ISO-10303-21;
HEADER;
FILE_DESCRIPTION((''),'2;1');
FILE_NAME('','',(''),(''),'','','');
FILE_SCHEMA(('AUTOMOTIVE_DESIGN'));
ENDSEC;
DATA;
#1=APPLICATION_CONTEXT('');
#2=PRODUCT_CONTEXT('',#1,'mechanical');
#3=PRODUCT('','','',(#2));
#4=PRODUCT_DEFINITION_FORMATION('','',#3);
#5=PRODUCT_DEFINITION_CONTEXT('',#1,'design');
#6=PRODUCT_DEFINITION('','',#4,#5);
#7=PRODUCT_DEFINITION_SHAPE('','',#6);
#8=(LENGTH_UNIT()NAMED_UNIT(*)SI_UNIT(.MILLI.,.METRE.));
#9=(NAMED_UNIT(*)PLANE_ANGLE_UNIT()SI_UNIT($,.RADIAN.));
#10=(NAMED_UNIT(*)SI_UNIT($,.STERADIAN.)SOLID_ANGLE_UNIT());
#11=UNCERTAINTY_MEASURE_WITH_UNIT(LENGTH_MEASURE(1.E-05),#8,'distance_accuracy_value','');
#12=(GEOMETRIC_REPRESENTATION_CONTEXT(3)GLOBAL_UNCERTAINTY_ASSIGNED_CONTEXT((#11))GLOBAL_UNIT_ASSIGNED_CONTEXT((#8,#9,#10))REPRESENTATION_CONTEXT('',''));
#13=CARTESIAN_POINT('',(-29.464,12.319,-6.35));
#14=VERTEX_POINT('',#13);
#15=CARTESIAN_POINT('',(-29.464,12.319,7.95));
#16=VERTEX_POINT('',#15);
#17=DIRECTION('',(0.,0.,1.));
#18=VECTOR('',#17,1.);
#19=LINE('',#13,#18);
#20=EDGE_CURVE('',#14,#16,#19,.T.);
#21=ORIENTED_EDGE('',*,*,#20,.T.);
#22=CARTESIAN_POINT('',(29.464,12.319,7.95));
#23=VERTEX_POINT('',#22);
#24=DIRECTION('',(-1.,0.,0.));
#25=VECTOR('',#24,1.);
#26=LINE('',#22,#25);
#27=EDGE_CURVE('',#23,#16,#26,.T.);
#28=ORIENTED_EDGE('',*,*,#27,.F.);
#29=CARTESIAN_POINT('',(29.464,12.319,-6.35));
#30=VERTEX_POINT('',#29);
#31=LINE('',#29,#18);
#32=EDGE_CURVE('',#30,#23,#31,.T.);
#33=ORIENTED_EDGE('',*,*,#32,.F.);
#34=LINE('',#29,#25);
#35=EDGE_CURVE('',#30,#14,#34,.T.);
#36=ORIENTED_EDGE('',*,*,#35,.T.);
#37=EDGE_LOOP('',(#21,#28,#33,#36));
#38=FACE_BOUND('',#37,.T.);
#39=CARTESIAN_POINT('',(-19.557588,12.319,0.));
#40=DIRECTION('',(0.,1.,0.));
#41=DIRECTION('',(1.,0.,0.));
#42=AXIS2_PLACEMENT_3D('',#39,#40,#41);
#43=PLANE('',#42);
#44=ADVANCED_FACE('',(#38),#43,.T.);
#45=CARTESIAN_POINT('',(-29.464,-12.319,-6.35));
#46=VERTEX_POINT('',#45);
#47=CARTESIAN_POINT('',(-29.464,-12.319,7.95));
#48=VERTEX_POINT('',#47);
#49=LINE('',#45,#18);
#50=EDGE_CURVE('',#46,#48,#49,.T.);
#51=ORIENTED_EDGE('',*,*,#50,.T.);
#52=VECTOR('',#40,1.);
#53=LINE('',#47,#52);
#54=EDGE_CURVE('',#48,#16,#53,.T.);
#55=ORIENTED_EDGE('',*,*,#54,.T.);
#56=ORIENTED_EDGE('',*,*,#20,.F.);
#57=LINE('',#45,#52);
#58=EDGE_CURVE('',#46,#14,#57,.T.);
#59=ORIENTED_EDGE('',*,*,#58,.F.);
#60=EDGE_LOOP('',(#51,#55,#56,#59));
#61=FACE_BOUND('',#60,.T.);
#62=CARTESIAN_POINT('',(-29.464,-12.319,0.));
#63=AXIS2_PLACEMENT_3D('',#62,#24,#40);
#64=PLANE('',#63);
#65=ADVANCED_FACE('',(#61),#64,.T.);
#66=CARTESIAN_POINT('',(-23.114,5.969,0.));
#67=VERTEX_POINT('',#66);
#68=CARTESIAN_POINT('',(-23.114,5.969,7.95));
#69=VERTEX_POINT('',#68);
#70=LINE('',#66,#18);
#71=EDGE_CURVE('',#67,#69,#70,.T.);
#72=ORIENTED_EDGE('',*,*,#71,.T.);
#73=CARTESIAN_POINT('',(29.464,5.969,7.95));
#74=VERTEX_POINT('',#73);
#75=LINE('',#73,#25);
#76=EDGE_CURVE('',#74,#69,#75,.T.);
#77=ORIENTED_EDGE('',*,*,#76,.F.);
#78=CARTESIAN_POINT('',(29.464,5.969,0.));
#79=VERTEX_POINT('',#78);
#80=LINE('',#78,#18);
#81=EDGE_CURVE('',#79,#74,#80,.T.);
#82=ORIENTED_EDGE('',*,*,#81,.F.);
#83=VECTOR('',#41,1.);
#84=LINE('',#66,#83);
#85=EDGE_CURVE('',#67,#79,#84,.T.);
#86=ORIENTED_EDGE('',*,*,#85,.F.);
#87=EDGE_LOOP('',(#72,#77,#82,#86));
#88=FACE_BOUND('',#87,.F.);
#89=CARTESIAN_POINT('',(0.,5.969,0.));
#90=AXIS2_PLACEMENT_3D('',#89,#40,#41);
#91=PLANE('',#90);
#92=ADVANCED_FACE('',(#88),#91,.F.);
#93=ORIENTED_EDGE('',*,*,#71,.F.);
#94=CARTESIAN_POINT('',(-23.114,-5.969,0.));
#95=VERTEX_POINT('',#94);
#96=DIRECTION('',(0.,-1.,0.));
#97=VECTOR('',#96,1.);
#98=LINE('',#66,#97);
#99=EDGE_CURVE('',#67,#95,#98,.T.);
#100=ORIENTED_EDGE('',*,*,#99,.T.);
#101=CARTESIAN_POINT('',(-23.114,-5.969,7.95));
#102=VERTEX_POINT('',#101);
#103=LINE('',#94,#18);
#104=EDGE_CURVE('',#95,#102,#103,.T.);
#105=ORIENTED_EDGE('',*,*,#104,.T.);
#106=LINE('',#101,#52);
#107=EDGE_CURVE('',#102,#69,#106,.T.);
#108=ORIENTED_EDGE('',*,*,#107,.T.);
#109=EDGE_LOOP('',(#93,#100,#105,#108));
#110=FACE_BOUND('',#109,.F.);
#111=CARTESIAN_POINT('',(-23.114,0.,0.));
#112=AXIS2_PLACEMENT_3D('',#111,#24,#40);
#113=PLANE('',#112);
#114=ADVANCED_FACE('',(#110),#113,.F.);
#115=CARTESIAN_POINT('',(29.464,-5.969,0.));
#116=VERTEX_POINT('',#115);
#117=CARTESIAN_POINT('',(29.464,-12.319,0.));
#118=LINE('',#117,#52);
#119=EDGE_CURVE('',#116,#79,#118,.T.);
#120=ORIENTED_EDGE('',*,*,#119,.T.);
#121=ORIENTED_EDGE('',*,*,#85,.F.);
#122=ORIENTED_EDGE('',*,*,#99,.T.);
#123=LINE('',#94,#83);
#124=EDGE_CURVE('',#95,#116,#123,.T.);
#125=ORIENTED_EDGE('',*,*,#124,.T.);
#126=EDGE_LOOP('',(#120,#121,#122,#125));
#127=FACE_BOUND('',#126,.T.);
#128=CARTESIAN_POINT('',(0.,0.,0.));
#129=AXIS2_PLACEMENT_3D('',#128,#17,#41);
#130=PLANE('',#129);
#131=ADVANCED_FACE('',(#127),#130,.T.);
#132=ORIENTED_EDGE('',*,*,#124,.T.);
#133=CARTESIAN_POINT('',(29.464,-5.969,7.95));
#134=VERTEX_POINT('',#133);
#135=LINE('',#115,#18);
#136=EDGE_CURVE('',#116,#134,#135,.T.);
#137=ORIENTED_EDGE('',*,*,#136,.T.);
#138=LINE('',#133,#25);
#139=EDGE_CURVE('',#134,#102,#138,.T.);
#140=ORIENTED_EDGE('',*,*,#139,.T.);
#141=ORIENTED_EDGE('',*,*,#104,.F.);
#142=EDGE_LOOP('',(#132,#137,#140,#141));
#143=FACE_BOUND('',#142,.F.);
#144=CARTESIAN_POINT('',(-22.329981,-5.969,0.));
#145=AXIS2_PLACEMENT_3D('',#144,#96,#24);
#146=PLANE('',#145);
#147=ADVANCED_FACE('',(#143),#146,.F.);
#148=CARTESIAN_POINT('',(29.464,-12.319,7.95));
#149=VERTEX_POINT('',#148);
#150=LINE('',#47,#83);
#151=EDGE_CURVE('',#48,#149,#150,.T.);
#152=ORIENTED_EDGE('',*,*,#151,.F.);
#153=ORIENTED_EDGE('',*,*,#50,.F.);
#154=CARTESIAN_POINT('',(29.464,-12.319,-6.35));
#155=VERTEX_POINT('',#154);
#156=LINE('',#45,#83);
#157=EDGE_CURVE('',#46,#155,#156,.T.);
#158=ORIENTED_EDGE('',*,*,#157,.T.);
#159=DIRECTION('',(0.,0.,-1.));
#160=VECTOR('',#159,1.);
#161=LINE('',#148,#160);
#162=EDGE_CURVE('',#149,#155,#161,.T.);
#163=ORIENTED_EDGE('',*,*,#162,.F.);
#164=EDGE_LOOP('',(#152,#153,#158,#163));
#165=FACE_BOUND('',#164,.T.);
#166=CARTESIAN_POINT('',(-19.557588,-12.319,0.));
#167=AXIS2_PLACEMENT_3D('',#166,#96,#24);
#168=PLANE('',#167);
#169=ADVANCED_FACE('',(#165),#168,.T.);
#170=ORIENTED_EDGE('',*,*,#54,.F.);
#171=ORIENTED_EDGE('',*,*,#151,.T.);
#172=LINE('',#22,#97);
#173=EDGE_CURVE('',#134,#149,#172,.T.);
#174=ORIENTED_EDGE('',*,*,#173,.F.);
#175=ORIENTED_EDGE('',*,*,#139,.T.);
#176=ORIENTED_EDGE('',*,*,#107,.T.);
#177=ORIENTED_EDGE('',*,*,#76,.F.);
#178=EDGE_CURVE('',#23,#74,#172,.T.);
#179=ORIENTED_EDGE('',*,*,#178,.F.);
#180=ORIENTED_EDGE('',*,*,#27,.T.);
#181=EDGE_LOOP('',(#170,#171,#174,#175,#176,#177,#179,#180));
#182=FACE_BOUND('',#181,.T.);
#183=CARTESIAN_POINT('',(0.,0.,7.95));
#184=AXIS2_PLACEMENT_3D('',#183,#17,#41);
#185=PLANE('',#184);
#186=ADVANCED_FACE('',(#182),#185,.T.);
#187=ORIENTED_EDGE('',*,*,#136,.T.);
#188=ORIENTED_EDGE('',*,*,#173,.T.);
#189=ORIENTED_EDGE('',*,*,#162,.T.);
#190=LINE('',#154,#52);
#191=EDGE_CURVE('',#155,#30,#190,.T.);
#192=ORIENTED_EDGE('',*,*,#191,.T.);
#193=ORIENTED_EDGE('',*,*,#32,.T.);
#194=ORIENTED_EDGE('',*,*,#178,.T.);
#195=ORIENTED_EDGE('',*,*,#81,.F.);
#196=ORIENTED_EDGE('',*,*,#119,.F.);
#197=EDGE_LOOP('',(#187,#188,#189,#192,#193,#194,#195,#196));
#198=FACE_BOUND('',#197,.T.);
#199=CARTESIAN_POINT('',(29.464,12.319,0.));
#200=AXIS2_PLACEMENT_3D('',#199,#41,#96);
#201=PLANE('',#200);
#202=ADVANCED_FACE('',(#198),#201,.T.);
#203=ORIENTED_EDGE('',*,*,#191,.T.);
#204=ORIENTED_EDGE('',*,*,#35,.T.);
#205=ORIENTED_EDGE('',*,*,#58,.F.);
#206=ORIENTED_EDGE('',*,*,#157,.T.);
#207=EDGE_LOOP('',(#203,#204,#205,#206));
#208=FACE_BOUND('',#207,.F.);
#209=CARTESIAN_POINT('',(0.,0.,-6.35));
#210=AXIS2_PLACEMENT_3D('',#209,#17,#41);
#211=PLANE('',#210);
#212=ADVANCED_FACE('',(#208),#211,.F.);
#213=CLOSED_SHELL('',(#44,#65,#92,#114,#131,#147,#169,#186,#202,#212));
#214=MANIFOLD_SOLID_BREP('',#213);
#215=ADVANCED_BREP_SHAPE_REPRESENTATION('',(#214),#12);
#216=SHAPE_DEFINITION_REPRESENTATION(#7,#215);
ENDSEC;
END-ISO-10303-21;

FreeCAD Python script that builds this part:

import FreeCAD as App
import Part
import Sketcher
Q = App.Units.Quantity

doc = App.newDocument("Part")
params = doc.addObject("Spreadsheet::Sheet", "Params")
for row, (alias, value) in enumerate([
    ("sketch1_width", "2.32 in"),
    ("sketch1_height", "0.97 in"),
    ("sketch1_height2", "0.47 in"),
    ("pad1_length", "0.3129921 in"),
    ("sketch2_width", "2.32 in"),
    ("sketch2_height", "0.97 in"),
    ("pad2_length", "0.25 in"),
], start=1):
    params.set(f"A{row}", alias)
    params.set(f"B{row}", "=" + value)
    params.setAlias(f"B{row}", alias)

body = doc.addObject("PartDesign::Body", "Body")

sketch1 = body.newObject("Sketcher::SketchObject", "Sketch")
sketch1.AttachmentSupport = (doc.getObject("XY_Plane"), [""])
sketch1.MapMode = "FlatFace"
sketch1.addGeometry([
    Part.LineSegment(App.Vector(29, 6, 0), App.Vector(29, 12, 0)),
    Part.LineSegment(App.Vector(29, 12, 0), App.Vector(-29, 12, 0)),
    Part.LineSegment(App.Vector(-29, 12, 0), App.Vector(-29, -12, 0)),
    Part.LineSegment(App.Vector(-29, -12, 0), App.Vector(29, -12, 0)),
    Part.LineSegment(App.Vector(29, -12, 0), App.Vector(29, -6, 0)),
    Part.LineSegment(App.Vector(29, -6, 0), App.Vector(-23, -6, 0)),
    Part.LineSegment(App.Vector(-23, -6, 0), App.Vector(-23, 6, 0)),
    Part.LineSegment(App.Vector(-23, 6, 0), App.Vector(29, 6, 0)),
], False)
sketch1.addConstraint([
    Sketcher.Constraint("Coincident", 0, 2, 1, 1),
    Sketcher.Constraint("Coincident", 1, 2, 2, 1),
    Sketcher.Constraint("Coincident", 2, 2, 3, 1),
    Sketcher.Constraint("Coincident", 3, 2, 4, 1),
    Sketcher.Constraint("Coincident", 4, 2, 5, 1),
    Sketcher.Constraint("Coincident", 5, 2, 6, 1),
    Sketcher.Constraint("Coincident", 6, 2, 7, 1),
    Sketcher.Constraint("Coincident", 7, 2, 0, 1),
    Sketcher.Constraint("Vertical", 0),
    Sketcher.Constraint("Horizontal", 1),
    Sketcher.Constraint("Vertical", 2),
    Sketcher.Constraint("Horizontal", 3),
    Sketcher.Constraint("Vertical", 4),
    Sketcher.Constraint("Horizontal", 5),
    Sketcher.Constraint("Vertical", 6),
    Sketcher.Constraint("Horizontal", 7),
    Sketcher.Constraint("Symmetric", 0, 2, 2, 2, -1, 1),
    Sketcher.Constraint("Symmetric", 4, 2, 7, 2, -1),
    Sketcher.Constraint("DistanceX", 1, 2, 1, 1, Q("2.32 in")),
    Sketcher.Constraint("DistanceY", 2, 2, 2, 1, Q("0.97 in")),
    Sketcher.Constraint("DistanceY", 6, 1, 6, 2, Q("0.47 in")),
    Sketcher.Constraint("DistanceX", 5, 2, -1, 1, Q("0.91 in")),
])
sketch1.setExpression("Constraints[18]", "Params.sketch1_width")
sketch1.setExpression("Constraints[19]", "Params.sketch1_height")
sketch1.setExpression("Constraints[20]", "Params.sketch1_height2")
pad1 = body.newObject("PartDesign::Pad", "Pad")
pad1.Profile = sketch1
pad1.setExpression("Length", "Params.pad1_length")

sketch2 = body.newObject("Sketcher::SketchObject", "Sketch001")
sketch2.AttachmentSupport = (doc.getObject("XY_Plane"), [""])
sketch2.MapMode = "FlatFace"
sketch2.addGeometry([
    Part.LineSegment(App.Vector(29, -12, 0), App.Vector(29, 12, 0)),
    Part.LineSegment(App.Vector(29, 12, 0), App.Vector(-29, 12, 0)),
    Part.LineSegment(App.Vector(-29, 12, 0), App.Vector(-29, -12, 0)),
    Part.LineSegment(App.Vector(-29, -12, 0), App.Vector(29, -12, 0)),
], False)
sketch2.addConstraint([
    Sketcher.Constraint("Coincident", 0, 2, 1, 1),
    Sketcher.Constraint("Coincident", 1, 2, 2, 1),
    Sketcher.Constraint("Coincident", 2, 2, 3, 1),
    Sketcher.Constraint("Coincident", 3, 2, 0, 1),
    Sketcher.Constraint("Vertical", 0),
    Sketcher.Constraint("Horizontal", 1),
    Sketcher.Constraint("Vertical", 2),
    Sketcher.Constraint("Horizontal", 3),
    Sketcher.Constraint("Symmetric", 0, 2, 2, 2, -1, 1),
    Sketcher.Constraint("DistanceX", 1, 2, 1, 1, Q("2.32 in")),
    Sketcher.Constraint("DistanceY", 0, 1, 0, 2, Q("0.97 in")),
])
sketch2.setExpression("Constraints[9]", "Params.sketch2_width")
sketch2.setExpression("Constraints[10]", "Params.sketch2_height")
pad2 = body.newObject("PartDesign::Pad", "Pad001")
pad2.Profile = sketch2
pad2.setExpression("Length", "Params.pad2_length")
pad2.Reversed = True

doc.recompute()
